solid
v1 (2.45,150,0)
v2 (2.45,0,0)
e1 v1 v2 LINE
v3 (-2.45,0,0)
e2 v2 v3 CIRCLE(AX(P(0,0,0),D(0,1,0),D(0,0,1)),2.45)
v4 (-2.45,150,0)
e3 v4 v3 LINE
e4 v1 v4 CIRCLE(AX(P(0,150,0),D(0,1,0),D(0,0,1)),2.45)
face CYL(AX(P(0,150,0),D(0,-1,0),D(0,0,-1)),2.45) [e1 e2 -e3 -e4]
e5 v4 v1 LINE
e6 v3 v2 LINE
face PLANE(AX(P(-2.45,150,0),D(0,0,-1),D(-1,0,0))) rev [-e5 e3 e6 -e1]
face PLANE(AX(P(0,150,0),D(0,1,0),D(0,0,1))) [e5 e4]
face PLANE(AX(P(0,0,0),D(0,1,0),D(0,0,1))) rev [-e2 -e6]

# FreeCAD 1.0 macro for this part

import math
import FreeCAD as App
import Part
import Sketcher

V = App.Vector
Q = App.Units.Quantity

doc = App.newDocument("Part")
body = doc.addObject("PartDesign::Body", "Body")

sketch1 = body.newObject("Sketcher::SketchObject", "Sketch")
sketch1.AttachmentSupport = (doc.getObject("XZ_Plane"), [""])
sketch1.MapMode = "FlatFace"
sketch1.addGeometry([
    Part.LineSegment(V(-2.5, 0, 0), V(2.5, 0, 0)),
    Part.ArcOfCircle(Part.Circle(V(0, 0, 0), V(0, 0, 1), 2.5), math.radians(180), math.radians(360)),
], False)
sketch1.addConstraint([
    Sketcher.Constraint("Coincident", 0, 1, 1, 1),
    Sketcher.Constraint("Coincident", 1, 2, 0, 2),
    Sketcher.Constraint("Horizontal", 0),
    Sketcher.Constraint("Coincident", 1, 3, -1, 1),
    Sketcher.Constraint("PointOnObject", 0, 1, -1),
    Sketcher.Constraint("Radius", 1, Q("2.45 mm")),
])
pad1 = body.newObject("PartDesign::Pad", "Pad")
pad1.Profile = sketch1
pad1.Length = 150
pad1.Reversed = True

doc.recompute()
